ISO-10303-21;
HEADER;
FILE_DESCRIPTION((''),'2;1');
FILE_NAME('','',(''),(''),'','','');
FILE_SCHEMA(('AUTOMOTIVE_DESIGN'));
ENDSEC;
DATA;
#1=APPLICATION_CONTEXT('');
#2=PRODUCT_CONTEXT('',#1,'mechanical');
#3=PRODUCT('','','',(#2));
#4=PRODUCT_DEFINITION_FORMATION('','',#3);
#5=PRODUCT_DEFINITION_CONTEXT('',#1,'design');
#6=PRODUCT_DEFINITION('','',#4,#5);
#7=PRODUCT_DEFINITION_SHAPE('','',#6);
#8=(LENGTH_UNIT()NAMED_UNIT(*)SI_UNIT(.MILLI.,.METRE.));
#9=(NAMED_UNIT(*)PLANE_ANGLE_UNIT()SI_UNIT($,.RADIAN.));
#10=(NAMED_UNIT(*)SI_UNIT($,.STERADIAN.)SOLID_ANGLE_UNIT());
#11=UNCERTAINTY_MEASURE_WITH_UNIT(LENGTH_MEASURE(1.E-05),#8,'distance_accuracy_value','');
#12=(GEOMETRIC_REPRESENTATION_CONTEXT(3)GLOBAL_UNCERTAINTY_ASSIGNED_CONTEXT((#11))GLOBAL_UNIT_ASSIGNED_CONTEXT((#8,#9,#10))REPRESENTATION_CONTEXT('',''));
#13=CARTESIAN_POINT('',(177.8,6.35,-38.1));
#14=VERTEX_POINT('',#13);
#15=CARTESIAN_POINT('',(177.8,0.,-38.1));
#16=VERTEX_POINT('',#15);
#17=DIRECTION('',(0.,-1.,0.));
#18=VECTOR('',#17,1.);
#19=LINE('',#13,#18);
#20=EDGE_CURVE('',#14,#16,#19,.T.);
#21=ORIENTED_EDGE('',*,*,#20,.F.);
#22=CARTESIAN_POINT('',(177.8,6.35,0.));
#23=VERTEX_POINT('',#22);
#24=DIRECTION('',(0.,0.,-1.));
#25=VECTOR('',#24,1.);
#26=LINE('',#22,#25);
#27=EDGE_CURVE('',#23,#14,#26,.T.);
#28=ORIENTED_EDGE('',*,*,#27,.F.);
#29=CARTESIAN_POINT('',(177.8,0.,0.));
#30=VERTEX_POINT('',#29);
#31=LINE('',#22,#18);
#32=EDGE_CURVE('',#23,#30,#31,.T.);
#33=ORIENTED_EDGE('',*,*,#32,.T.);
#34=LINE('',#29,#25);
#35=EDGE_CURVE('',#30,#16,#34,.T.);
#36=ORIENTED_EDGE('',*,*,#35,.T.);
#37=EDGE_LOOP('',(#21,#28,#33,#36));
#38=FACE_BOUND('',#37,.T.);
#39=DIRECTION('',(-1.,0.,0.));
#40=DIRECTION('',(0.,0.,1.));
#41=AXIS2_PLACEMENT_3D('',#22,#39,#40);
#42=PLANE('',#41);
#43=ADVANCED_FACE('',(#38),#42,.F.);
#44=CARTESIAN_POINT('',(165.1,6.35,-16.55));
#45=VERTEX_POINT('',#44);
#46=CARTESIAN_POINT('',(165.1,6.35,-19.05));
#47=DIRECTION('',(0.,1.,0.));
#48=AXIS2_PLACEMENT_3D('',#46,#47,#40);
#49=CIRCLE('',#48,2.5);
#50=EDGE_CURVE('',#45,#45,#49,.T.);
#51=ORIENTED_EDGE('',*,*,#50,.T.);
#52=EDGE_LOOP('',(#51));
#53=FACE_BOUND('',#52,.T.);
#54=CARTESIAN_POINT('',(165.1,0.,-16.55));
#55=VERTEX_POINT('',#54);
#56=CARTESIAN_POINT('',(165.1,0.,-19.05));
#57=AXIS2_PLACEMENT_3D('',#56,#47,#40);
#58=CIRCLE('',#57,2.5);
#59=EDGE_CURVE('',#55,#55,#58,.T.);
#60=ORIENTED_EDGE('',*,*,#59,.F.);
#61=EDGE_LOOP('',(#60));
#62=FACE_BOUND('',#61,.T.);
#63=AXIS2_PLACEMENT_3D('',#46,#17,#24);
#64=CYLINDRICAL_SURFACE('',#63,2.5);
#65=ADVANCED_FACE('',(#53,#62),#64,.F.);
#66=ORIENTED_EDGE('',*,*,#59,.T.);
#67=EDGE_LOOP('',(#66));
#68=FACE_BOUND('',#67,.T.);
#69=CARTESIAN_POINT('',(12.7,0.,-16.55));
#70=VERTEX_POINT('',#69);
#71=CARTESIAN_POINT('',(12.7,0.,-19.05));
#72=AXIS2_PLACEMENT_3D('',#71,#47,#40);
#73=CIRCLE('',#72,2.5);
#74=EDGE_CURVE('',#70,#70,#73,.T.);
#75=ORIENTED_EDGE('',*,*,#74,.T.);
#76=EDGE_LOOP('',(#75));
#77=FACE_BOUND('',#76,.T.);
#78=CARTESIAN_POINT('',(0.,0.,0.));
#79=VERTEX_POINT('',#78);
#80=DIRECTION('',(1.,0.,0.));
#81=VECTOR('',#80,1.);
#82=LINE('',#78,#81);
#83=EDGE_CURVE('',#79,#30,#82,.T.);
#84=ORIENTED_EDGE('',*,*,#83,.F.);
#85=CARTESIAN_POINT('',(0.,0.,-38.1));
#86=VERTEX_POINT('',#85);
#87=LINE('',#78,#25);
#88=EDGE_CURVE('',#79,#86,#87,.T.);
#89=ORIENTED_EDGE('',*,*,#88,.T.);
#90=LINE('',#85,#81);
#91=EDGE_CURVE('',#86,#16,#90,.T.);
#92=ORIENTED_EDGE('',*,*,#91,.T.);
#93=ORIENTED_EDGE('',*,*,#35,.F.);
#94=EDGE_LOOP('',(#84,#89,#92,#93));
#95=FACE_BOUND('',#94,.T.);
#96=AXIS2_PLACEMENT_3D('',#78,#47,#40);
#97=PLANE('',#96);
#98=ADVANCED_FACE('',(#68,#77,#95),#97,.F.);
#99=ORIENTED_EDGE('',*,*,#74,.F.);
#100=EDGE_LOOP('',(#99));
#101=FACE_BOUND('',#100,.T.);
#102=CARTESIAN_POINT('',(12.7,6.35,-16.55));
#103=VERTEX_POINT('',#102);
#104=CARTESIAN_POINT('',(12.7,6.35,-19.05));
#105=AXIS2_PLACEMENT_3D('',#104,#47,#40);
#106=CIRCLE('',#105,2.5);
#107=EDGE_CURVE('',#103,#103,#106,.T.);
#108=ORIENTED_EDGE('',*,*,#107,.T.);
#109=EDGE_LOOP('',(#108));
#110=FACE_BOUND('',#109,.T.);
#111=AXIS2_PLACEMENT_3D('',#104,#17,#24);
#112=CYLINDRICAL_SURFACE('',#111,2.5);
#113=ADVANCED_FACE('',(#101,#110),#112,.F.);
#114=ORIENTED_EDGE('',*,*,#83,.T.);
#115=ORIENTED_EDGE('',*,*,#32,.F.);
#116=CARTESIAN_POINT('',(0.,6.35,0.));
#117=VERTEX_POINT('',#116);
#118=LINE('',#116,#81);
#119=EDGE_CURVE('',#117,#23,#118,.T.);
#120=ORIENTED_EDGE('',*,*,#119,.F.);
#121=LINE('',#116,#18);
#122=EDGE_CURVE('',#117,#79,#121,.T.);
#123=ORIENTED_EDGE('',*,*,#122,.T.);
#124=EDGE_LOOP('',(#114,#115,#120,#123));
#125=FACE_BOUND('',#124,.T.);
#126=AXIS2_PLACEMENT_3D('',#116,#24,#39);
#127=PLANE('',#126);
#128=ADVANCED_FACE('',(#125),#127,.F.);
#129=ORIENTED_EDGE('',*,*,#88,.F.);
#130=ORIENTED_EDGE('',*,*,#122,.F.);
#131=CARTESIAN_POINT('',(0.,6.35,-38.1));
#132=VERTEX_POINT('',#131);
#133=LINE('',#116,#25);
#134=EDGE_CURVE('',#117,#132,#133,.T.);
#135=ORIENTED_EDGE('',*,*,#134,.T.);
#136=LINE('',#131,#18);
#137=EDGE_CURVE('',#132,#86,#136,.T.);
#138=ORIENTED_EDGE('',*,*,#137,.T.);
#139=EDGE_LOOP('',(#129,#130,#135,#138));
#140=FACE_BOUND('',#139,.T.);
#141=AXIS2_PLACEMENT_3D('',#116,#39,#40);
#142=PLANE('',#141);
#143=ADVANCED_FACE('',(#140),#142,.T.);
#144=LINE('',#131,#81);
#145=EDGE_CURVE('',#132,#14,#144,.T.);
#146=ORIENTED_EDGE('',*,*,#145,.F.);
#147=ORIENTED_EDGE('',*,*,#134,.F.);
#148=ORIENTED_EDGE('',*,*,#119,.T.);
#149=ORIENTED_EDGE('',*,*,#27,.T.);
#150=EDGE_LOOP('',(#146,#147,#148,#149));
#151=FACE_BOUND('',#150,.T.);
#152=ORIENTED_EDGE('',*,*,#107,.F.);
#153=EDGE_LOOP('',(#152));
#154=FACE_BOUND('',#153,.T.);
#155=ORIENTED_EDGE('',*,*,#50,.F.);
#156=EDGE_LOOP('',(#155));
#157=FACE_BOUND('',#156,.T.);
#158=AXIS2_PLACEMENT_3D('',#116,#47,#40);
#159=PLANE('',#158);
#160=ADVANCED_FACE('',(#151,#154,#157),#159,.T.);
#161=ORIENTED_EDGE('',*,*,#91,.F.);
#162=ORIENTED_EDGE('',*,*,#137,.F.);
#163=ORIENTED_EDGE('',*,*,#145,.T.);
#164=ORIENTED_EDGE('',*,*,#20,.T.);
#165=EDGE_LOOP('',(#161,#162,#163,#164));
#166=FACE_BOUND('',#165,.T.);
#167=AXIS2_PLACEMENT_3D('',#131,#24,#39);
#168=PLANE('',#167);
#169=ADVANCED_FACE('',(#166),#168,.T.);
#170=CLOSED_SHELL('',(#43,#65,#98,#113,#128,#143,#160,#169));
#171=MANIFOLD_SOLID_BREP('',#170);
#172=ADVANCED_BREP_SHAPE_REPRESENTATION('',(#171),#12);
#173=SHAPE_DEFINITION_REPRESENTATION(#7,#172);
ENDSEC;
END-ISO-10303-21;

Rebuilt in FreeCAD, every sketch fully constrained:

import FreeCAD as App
import Part
import Sketcher
Q = App.Units.Quantity

doc = App.newDocument("Part")
body = doc.addObject("PartDesign::Body", "Body")

# Sketch on XZ plane
sketch1 = body.newObject("Sketcher::SketchObject", "Sketch")
sketch1.AttachmentSupport = (doc.getObject("XZ_Plane"), [""])
sketch1.MapMode = "FlatFace"
sketch1.addGeometry(Part.LineSegment(App.Vector(0, -38.1, 0), App.Vector(0, 0, 0)), False)
sketch1.addGeometry(Part.LineSegment(App.Vector(0, 0, 0), App.Vector(177.8, 0, 0)), False)
sketch1.addGeometry(Part.LineSegment(App.Vector(177.8, 0, 0), App.Vector(177.8, -38.1, 0)), False)
sketch1.addGeometry(Part.LineSegment(App.Vector(177.8, -38.1, 0), App.Vector(0, -38.1, 0)), False)
sketch1.addGeometry(Part.Circle(App.Vector(12.7, -19.1, 0), App.Vector(0, 0, 1), 2.5), False)
sketch1.addGeometry(Part.Circle(App.Vector(165.1, -19.1, 0), App.Vector(0, 0, 1), 2.5), False)
sketch1.addConstraint(Sketcher.Constraint("Coincident", 0, 2, 1, 1))
sketch1.addConstraint(Sketcher.Constraint("Coincident", 1, 2, 2, 1))
sketch1.addConstraint(Sketcher.Constraint("Coincident", 2, 2, 3, 1))
sketch1.addConstraint(Sketcher.Constraint("Coincident", 3, 2, 0, 1))
sketch1.addConstraint(Sketcher.Constraint("Vertical", 0))
sketch1.addConstraint(Sketcher.Constraint("Horizontal", 1))
sketch1.addConstraint(Sketcher.Constraint("Vertical", 2))
sketch1.addConstraint(Sketcher.Constraint("Horizontal", 3))
sketch1.addConstraint(Sketcher.Constraint("Coincident", 0, 2, -1, 1))
sketch1.addConstraint(Sketcher.Constraint("Equal", 4, 5))
sketch1.addConstraint(Sketcher.Constraint("Horizontal", 4, 3, 5, 3))
sketch1.addConstraint(Sketcher.Constraint("DistanceX", 1, 1, 1, 2, Q("7 in")))
sketch1.addConstraint(Sketcher.Constraint("DistanceY", 0, 1, 0, 2, Q("1.5 in")))
sketch1.addConstraint(Sketcher.Constraint("DistanceX", 4, 3, 5, 3, Q("6 in")))
sketch1.addConstraint(Sketcher.Constraint("DistanceX", -1, 1, 4, 3, Q("0.5 in")))
sketch1.addConstraint(Sketcher.Constraint("Diameter", 4, 5.0))
sketch1.addConstraint(Sketcher.Constraint("DistanceY", 4, 3, -1, 1, Q("0.75 in")))
pad1 = body.newObject("PartDesign::Pad", "Pad")
pad1.Profile = sketch1
pad1.Length = Q("0.25 in")
pad1.Reversed = True

doc.recompute()
